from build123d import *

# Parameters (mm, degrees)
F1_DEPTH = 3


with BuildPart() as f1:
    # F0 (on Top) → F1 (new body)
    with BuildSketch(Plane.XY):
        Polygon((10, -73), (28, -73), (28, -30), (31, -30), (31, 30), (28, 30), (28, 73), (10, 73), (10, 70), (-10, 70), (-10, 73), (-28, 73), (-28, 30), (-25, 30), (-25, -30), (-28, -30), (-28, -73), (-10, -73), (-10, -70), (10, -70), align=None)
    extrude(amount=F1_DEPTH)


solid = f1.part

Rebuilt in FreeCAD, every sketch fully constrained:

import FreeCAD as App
import Part
import Sketcher
from FreeCAD import Vector


def add_polygon(sketch, points):
    """Adds a closed chain of lines whose ends are joined by coincident constraints."""
    first, n = sketch.GeometryCount, len(points)
    for a, b in zip(points, points[1:] + points[:1]):
        sketch.addGeometry(Part.LineSegment(App.Vector(*a, 0), App.Vector(*b, 0)), False)
    for i in range(n):
        sketch.addConstraint(Sketcher.Constraint("Coincident", first + i, 2, first + (i + 1) % n, 1))

doc = App.newDocument("Part")
body = doc.addObject("PartDesign::Body", "Body")

sketch1 = body.newObject("Sketcher::SketchObject", "Sketch")
sketch1.AttachmentSupport = (doc.getObject("XY_Plane"), [""])
sketch1.MapMode = "FlatFace"
add_polygon(sketch1, [(10, -73), (28, -73), (28, -30), (31, -30), (31, 30), (28, 30), (28, 73), (10, 73), (10, 70), (-10, 70), (-10, 73), (-28, 73), (-28, 30), (-25, 30), (-25, -30), (-28, -30), (-28, -73), (-10, -73), (-10, -70), (10, -70)])
sketch1.addConstraint(Sketcher.Constraint("Horizontal", 0))
sketch1.addConstraint(Sketcher.Constraint("Vertical", 1))
sketch1.addConstraint(Sketcher.Constraint("Horizontal", 2))
sketch1.addConstraint(Sketcher.Constraint("Vertical", 3))
sketch1.addConstraint(Sketcher.Constraint("Horizontal", 4))
sketch1.addConstraint(Sketcher.Constraint("Vertical", 5))
sketch1.addConstraint(Sketcher.Constraint("Horizontal", 6))
sketch1.addConstraint(Sketcher.Constraint("Vertical", 7))
sketch1.addConstraint(Sketcher.Constraint("Horizontal", 8))
sketch1.addConstraint(Sketcher.Constraint("Vertical", 9))
sketch1.addConstraint(Sketcher.Constraint("Horizontal", 10))
sketch1.addConstraint(Sketcher.Constraint("Vertical", 11))
sketch1.addConstraint(Sketcher.Constraint("Horizontal", 12))
sketch1.addConstraint(Sketcher.Constraint("Vertical", 13))
sketch1.addConstraint(Sketcher.Constraint("Horizontal", 14))
sketch1.addConstraint(Sketcher.Constraint("Vertical", 15))
sketch1.addConstraint(Sketcher.Constraint("Horizontal", 16))
sketch1.addConstraint(Sketcher.Constraint("Vertical", 17))
sketch1.addConstraint(Sketcher.Constraint("Horizontal", 18))
sketch1.addConstraint(Sketcher.Constraint("Vertical", 19))
sketch1.addConstraint(Sketcher.Constraint("Symmetric", 0, 2, 10, 2, -1, 1))
sketch1.addConstraint(Sketcher.Constraint("Symmetric", 4, 2, 14, 2, -1, 1))
sketch1.addConstraint(Sketcher.Constraint("Symmetric", 6, 2, 16, 2, -1, 1))
sketch1.addConstraint(Sketcher.Constraint("Symmetric", 8, 2, 18, 2, -1, 1))
sketch1.addConstraint(Sketcher.Constraint("Symmetric", 6, 2, 9, 2, -2))
sketch1.addConstraint(Sketcher.Constraint("Symmetric", 4, 2, 11, 2, -2))
sketch1.addConstraint(Sketcher.Constraint("Horizontal", 2, 2, 13, 2))
sketch1.addConstraint(Sketcher.Constraint("Equal", 4, 12))
sketch1.addConstraint(Sketcher.Constraint("Equal", 14, 7))
sketch1.addConstraint(Sketcher.Constraint("DistanceX", 0, 1, 0, 2, 18.0))
sketch1.addConstraint(Sketcher.Constraint("DistanceX", 2, 1, 2, 2, 3.0))
sketch1.addConstraint(Sketcher.Constraint("DistanceX", 8, 2, 8, 1, 20.0))
sketch1.addConstraint(Sketcher.Constraint("DistanceY", 1, 1, 1, 2, 43.0))
sketch1.addConstraint(Sketcher.Constraint("DistanceY", 3, 1, 3, 2, 60.0))
pad1 = body.newObject("PartDesign::Pad", "Pad")
pad1.Profile = sketch1
pad1.Length = 3

doc.recompute()
